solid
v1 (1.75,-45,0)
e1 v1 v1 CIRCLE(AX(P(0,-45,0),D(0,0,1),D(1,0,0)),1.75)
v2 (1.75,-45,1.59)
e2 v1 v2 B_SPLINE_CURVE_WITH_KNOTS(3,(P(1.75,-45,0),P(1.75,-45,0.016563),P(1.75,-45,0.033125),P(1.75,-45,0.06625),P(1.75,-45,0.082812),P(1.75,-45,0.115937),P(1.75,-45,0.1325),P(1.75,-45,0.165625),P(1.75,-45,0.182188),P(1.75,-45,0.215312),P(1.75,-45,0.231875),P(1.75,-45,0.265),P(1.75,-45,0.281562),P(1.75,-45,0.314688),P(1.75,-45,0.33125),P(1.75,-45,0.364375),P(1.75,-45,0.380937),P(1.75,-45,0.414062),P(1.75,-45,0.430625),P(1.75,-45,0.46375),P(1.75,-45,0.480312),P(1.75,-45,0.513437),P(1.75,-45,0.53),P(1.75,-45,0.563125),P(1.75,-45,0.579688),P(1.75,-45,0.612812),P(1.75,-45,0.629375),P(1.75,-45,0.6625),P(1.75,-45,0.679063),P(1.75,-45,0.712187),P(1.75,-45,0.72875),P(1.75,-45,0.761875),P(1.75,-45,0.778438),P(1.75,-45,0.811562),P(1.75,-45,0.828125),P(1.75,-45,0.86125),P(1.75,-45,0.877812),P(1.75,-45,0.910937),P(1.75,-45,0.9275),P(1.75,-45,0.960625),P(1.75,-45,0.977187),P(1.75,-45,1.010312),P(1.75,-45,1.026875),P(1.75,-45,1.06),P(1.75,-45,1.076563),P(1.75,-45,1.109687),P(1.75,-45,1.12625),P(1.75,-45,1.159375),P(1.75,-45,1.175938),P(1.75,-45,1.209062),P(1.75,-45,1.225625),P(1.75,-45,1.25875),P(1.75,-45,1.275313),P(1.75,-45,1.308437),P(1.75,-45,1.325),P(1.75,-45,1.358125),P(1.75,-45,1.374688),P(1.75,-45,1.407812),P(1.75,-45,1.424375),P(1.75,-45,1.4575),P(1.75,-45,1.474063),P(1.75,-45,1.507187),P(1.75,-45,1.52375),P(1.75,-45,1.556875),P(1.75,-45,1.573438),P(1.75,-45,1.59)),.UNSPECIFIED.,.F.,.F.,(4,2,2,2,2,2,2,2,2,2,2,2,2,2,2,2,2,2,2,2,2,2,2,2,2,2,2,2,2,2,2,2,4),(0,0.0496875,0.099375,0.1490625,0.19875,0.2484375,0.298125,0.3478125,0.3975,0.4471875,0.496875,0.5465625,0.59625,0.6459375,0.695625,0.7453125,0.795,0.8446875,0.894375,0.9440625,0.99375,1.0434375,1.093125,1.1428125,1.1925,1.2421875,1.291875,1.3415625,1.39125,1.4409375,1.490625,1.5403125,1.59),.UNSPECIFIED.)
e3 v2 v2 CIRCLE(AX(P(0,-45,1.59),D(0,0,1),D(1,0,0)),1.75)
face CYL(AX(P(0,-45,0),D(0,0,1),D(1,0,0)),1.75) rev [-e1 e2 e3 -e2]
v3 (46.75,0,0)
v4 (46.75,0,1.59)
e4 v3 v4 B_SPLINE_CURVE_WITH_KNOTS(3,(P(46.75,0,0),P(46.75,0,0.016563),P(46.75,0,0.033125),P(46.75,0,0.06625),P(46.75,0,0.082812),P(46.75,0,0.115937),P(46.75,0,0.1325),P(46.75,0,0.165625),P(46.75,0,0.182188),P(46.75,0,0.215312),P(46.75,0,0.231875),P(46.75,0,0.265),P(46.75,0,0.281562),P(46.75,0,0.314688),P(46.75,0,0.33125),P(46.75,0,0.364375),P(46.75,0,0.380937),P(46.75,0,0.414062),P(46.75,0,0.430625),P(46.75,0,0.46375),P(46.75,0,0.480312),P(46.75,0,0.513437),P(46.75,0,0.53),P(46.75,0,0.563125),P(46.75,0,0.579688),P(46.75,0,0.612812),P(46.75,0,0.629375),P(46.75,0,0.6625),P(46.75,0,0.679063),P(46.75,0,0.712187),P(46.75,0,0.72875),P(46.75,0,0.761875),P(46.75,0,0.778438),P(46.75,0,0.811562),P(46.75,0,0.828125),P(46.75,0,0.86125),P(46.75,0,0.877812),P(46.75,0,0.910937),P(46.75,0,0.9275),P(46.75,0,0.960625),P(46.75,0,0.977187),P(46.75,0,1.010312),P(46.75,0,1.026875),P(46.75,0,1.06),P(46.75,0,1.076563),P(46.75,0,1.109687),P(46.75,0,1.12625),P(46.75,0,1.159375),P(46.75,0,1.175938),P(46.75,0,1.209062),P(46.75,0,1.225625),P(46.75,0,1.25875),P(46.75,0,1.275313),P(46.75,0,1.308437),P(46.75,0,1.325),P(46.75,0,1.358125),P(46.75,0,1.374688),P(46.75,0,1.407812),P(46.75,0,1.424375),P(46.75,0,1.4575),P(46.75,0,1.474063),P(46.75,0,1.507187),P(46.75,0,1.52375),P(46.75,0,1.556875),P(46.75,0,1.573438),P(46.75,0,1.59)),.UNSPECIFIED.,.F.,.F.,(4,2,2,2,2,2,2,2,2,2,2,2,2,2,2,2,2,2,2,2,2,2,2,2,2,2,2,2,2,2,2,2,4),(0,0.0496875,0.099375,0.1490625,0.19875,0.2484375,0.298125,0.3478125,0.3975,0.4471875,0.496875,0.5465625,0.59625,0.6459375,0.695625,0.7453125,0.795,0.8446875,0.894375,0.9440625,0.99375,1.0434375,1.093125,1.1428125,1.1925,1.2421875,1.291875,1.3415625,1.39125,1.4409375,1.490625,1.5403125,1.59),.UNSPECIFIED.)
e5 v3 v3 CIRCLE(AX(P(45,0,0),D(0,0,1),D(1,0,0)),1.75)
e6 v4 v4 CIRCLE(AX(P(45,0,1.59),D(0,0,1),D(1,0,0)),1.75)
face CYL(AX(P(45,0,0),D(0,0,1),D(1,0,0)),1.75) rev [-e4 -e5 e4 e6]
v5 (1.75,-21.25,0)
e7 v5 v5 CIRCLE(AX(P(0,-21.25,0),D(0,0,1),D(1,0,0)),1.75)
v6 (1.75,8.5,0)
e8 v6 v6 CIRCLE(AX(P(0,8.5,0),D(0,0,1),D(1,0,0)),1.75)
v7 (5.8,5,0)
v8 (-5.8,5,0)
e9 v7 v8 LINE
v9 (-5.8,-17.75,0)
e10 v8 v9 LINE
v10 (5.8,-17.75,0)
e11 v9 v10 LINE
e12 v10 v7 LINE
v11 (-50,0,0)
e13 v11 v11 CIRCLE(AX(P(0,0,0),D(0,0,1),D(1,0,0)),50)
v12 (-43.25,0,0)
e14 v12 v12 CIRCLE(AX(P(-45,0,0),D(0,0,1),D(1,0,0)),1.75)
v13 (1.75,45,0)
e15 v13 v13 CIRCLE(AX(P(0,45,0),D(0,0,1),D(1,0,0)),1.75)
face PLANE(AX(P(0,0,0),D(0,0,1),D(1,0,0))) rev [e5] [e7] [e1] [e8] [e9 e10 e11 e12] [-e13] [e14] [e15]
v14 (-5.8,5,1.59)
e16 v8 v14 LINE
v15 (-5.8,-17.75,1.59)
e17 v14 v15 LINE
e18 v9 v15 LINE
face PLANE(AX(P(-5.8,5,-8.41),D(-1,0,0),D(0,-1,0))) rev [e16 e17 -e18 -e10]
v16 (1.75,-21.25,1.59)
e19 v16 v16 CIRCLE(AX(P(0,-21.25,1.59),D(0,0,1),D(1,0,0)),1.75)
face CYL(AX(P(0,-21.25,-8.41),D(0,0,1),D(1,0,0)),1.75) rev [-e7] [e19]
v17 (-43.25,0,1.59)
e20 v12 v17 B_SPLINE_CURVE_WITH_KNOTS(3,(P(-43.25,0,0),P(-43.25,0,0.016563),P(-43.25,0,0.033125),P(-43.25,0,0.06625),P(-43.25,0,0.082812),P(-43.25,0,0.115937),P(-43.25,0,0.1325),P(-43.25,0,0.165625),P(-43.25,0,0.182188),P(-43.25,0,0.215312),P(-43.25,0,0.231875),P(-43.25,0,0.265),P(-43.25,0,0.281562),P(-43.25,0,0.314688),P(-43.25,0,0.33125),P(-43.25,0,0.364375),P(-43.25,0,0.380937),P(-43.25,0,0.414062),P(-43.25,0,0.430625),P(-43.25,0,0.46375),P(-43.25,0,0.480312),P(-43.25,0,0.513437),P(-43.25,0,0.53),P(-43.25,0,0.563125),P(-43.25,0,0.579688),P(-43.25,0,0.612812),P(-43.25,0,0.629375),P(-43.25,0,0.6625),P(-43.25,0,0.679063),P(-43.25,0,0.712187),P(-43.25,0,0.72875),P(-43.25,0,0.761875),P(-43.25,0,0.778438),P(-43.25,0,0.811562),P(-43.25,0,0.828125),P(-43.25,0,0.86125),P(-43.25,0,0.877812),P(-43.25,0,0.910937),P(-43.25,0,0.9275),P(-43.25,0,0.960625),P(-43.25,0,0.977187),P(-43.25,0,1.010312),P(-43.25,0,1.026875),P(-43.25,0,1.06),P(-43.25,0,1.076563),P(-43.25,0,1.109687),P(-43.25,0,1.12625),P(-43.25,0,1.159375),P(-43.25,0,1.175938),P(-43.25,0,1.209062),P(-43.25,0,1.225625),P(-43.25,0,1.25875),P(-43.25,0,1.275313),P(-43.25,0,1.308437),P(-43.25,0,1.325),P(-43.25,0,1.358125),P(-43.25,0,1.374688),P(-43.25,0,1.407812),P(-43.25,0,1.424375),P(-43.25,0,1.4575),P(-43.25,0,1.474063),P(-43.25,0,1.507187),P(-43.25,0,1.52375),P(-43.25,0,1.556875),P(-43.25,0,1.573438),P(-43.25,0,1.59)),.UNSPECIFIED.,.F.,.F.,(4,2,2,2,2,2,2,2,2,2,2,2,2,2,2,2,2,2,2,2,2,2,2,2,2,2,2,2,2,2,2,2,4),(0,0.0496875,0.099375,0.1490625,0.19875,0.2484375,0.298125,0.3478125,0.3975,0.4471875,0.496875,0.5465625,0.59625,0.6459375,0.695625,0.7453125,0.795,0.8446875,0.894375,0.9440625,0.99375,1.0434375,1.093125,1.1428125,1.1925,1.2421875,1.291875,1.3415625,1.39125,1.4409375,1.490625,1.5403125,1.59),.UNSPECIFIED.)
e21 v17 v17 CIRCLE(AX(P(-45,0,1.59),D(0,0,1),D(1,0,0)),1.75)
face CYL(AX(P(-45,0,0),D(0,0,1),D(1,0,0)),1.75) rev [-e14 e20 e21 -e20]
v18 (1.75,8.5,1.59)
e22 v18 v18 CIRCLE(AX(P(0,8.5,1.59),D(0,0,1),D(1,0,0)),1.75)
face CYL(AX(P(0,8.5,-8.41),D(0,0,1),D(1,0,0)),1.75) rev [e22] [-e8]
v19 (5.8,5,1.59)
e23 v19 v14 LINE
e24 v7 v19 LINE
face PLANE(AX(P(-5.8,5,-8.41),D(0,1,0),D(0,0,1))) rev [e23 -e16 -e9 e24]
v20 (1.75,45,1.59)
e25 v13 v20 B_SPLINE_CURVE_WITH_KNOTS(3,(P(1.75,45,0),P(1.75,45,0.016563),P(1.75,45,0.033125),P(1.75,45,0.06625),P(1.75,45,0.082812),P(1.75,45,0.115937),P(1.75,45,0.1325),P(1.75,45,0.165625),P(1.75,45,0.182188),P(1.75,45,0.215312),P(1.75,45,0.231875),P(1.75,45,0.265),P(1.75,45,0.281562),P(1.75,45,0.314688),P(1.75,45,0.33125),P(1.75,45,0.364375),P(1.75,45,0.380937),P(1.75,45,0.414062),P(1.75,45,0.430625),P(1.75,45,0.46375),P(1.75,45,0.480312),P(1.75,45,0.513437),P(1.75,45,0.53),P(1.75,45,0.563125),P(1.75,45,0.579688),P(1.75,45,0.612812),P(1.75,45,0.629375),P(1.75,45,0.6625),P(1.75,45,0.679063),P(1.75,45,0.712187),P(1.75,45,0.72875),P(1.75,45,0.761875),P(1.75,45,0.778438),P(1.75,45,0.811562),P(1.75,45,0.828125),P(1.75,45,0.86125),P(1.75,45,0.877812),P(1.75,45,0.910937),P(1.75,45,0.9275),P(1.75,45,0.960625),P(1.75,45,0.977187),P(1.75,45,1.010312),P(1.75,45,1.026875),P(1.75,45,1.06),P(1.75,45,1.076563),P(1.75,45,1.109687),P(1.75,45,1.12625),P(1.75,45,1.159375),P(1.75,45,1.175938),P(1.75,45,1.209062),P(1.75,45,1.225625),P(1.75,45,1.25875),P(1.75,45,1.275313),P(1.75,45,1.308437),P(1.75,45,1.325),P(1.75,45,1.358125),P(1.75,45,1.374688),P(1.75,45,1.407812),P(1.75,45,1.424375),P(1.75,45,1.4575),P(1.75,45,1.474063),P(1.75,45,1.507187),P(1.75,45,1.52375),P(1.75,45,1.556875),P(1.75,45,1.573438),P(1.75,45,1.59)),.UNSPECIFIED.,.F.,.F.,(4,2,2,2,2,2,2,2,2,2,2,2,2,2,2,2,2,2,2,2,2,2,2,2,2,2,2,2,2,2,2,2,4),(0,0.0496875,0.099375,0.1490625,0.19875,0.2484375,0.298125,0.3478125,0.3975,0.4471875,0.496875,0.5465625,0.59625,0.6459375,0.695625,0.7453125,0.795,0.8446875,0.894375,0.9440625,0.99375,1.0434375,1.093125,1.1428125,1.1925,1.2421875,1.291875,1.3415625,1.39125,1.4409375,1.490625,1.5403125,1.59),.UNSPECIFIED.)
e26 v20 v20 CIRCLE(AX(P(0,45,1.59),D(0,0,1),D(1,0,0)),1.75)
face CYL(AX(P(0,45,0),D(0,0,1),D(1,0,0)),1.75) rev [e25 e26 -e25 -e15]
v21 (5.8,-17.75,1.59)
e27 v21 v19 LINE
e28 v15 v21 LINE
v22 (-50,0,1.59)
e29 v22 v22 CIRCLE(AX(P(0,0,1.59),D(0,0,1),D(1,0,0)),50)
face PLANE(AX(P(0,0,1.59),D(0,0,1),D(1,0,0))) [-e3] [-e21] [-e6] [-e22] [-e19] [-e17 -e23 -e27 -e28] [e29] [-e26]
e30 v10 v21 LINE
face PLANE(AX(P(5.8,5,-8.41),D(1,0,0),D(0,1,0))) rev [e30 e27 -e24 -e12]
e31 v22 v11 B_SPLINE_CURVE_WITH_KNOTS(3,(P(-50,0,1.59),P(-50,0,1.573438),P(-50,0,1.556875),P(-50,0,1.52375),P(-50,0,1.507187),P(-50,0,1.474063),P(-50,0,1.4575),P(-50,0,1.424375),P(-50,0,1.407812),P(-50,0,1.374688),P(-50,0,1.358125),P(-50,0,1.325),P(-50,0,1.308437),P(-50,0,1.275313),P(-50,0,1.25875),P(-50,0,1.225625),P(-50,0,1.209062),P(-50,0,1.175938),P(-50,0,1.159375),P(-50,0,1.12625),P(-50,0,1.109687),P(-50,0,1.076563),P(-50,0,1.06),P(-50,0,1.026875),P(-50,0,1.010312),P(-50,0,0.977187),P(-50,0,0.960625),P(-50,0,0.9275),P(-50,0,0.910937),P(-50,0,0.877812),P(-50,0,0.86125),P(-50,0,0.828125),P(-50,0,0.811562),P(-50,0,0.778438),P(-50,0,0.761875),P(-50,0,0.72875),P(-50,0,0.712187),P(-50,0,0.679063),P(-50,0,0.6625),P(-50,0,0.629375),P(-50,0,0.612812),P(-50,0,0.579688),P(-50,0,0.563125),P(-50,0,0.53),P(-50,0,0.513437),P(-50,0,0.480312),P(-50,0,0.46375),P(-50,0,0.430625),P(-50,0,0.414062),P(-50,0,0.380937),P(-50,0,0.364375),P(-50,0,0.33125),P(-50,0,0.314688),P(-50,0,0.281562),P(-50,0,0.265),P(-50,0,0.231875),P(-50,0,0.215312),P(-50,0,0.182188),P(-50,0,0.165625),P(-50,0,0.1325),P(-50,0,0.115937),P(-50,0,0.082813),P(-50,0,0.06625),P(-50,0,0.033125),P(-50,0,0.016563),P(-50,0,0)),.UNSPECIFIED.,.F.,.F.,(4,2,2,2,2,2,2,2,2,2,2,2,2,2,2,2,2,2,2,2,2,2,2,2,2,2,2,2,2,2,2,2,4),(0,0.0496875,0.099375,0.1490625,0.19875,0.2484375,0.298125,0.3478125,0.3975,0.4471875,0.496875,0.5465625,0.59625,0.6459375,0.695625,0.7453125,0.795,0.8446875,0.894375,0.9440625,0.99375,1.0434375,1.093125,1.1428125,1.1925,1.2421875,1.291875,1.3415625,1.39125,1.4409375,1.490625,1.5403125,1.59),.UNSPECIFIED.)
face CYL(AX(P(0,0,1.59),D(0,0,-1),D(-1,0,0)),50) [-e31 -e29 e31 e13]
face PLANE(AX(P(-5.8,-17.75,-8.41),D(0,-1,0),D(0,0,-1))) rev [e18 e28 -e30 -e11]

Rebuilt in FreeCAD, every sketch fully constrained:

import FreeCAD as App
import Part
import Sketcher
Q = App.Units.Quantity

doc = App.newDocument("Part")
body = doc.addObject("PartDesign::Body", "Body")

# Sketch on XY plane
sketch1 = body.newObject("Sketcher::SketchObject", "Sketch")
sketch1.AttachmentSupport = (doc.getObject("XY_Plane"), [""])
sketch1.MapMode = "FlatFace"
sketch1.addGeometry(Part.Circle(App.Vector(0, 0, 0), App.Vector(0, 0, 1), 50), False)
sketch1.addConstraint([
    Sketcher.Constraint("Coincident", 0, 3, -1, 1),
    Sketcher.Constraint("Diameter", 0, Q("100 mm")),
])
pad1 = body.newObject("PartDesign::Pad", "Pad")
pad1.Profile = sketch1
pad1.Length = 1.59

# Sketch on XY plane
sketch2 = body.newObject("Sketcher::SketchObject", "Sketch001")
sketch2.AttachmentSupport = (doc.getObject("XY_Plane"), [""])
sketch2.MapMode = "FlatFace"
sketch2.AttachmentOffset = App.Placement(App.Vector(0, 0, 1.59), App.Rotation())
sketch2.addGeometry([
    Part.Circle(App.Vector(0, 45, 0), App.Vector(0, 0, 1), 1.8),
    Part.Circle(App.Vector(45, 0, 0), App.Vector(0, 0, 1), 1.8),
    Part.Circle(App.Vector(0, -45, 0), App.Vector(0, 0, 1), 1.8),
    Part.Circle(App.Vector(-45, 0, 0), App.Vector(0, 0, 1), 1.8),
], False)
sketch2.addConstraint([
    Sketcher.Constraint("Equal", 0, 1),
    Sketcher.Constraint("Equal", 1, 2),
    Sketcher.Constraint("Equal", 2, 3),
    Sketcher.Constraint("Symmetric", 0, 3, 2, 3, -1, 1),
    Sketcher.Constraint("Symmetric", 1, 3, 3, 3, -1, 1),
    Sketcher.Constraint("PointOnObject", 0, 3, -2),
    Sketcher.Constraint("PointOnObject", 1, 3, -1),
    Sketcher.Constraint("Diameter", 0, Q("3.5 mm")),
    Sketcher.Constraint("DistanceY", -1, 1, 0, 3, Q("45 mm")),
    Sketcher.Constraint("DistanceX", -1, 1, 1, 3, Q("45 mm")),
])
pocket1 = body.newObject("PartDesign::Pocket", "Pocket")
pocket1.Profile = sketch2
pocket1.Length = 1.59

# Sketch on XY plane
sketch3 = body.newObject("Sketcher::SketchObject", "Sketch002")
sketch3.AttachmentSupport = (doc.getObject("XY_Plane"), [""])
sketch3.MapMode = "FlatFace"
sketch3.AttachmentOffset = App.Placement(App.Vector(0, 0, 1.59), App.Rotation())
sketch3.addGeometry([
    Part.Circle(App.Vector(0, 8.5, 0), App.Vector(0, 0, 1), 1.8),  # 0
    Part.Circle(App.Vector(0, -21.2, 0), App.Vector(0, 0, 1), 1.8),  # 1
    Part.LineSegment(App.Vector(-5.8, 5, 0), App.Vector(-5.8, -17.8, 0)),  # 2
    Part.LineSegment(App.Vector(-5.8, -17.8, 0), App.Vector(5.8, -17.8, 0)),  # 3
    Part.LineSegment(App.Vector(5.8, -17.8, 0), App.Vector(5.8, 5, 0)),  # 4
    Part.LineSegment(App.Vector(5.8, 5, 0), App.Vector(-5.8, 5, 0)),  # 5
], False)
sketch3.addConstraint([
    Sketcher.Constraint("Coincident", 2, 2, 3, 1),
    Sketcher.Constraint("Coincident", 3, 2, 4, 1),
    Sketcher.Constraint("Coincident", 4, 2, 5, 1),
    Sketcher.Constraint("Coincident", 5, 2, 2, 1),
    Sketcher.Constraint("Vertical", 2),
    Sketcher.Constraint("Horizontal", 3),
    Sketcher.Constraint("Vertical", 4),
    Sketcher.Constraint("Horizontal", 5),
    Sketcher.Constraint("Equal", 0, 1),
    Sketcher.Constraint("PointOnObject", 0, 3, -2),
    Sketcher.Constraint("PointOnObject", 1, 3, -2),
    Sketcher.Constraint("Diameter", 0, Q("3.5 mm")),
    Sketcher.Constraint("DistanceX", 3, 1, 3, 2, Q("11.6 mm")),
    Sketcher.Constraint("DistanceY", -1, 1, 4, 2, Q("5 mm")),
    Sketcher.Constraint("DistanceY", 2, 2, 2, 1, Q("22.75 mm")),
    Sketcher.Constraint("DistanceY", -1, 1, 0, 3, Q("8.5 mm")),
    Sketcher.Constraint("DistanceX", 2, 2, -1, 1, Q("5.8 mm")),
    Sketcher.Constraint("DistanceY", 1, 3, 2, 2, Q("3.5 mm")),
])
pocket2 = body.newObject("PartDesign::Pocket", "Pocket001")
pocket2.Profile = sketch3
pocket2.Length = 10

doc.recompute()
